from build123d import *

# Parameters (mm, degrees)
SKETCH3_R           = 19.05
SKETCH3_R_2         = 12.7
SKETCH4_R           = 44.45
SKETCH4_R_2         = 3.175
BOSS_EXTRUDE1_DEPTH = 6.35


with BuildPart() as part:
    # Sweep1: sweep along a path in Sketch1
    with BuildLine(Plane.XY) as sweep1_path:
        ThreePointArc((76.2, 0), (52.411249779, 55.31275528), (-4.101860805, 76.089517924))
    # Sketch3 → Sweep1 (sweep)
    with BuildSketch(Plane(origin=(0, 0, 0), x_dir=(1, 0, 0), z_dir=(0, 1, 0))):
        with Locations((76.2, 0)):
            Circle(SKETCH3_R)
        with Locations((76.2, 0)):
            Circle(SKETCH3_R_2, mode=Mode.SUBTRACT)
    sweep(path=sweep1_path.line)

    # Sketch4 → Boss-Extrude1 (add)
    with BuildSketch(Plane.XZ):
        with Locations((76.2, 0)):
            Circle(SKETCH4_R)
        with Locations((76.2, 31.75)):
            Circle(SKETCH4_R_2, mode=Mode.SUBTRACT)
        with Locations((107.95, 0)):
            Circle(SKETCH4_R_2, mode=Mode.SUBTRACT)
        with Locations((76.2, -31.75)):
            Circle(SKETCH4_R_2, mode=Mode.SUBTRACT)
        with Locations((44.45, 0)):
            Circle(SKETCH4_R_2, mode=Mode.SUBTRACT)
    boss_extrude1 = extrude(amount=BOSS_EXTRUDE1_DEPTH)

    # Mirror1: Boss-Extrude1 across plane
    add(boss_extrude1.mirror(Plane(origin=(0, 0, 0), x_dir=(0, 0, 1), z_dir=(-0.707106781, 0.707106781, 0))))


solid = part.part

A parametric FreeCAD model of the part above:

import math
import FreeCAD as App
import Part
import Sketcher
Q = App.Units.Quantity

doc = App.newDocument("Part")
body = doc.addObject("PartDesign::Body", "Body")

sketch1 = body.newObject("Sketcher::SketchObject", "Sketch")
sketch1.AttachmentSupport = (doc.getObject("XZ_Plane"), [""])
sketch1.MapMode = "FlatFace"
sketch1.addGeometry(Part.Circle(App.Vector(76, 0, 0), App.Vector(0, 0, 1), 19), False)
sketch1.addGeometry(Part.Circle(App.Vector(76, 0, 0), App.Vector(0, 0, 1), 13), False)
sketch1.addConstraint(Sketcher.Constraint("Coincident", 1, 3, 0, 3))
sketch1.addConstraint(Sketcher.Constraint("PointOnObject", 0, 3, -1))
sketch1.addConstraint(Sketcher.Constraint("Diameter", 1, Q("1 in")))
sketch1.addConstraint(Sketcher.Constraint("Diameter", 0, Q("1.5 in")))
sketch1.addConstraint(Sketcher.Constraint("DistanceX", -1, 1, 0, 3, Q("3 in")))

sketch2 = body.newObject("Sketcher::SketchObject", "Sketch001")
sketch2.AttachmentSupport = (doc.getObject("XY_Plane"), [""])
sketch2.MapMode = "FlatFace"
sketch2.addGeometry(Part.ArcOfCircle(Part.Circle(App.Vector(0, 0, 0), App.Vector(0, 0, 1), 76), math.radians(0), math.radians(93)), False)
sketch2.addConstraint(Sketcher.Constraint("Coincident", 0, 3, -1, 1))
sketch2.addConstraint(Sketcher.Constraint("PointOnObject", 0, 1, -1))
sketch2.addConstraint(Sketcher.Constraint("Radius", 0, Q("3 in")))
sketch2.addConstraint(Sketcher.Constraint("DistanceX", 0, 2, -1, 1, 4.101861))
doc.recompute()

additivepipe = body.newObject("PartDesign::AdditivePipe", "AdditivePipe")
additivepipe.Profile = sketch1
additivepipe.Spine = (sketch2, ["Edge1"])

sketch3 = body.newObject("Sketcher::SketchObject", "Sketch002")
sketch3.AttachmentSupport = (doc.getObject("XZ_Plane"), [""])
sketch3.MapMode = "FlatFace"
sketch3.addGeometry(Part.Circle(App.Vector(76.2, 0, 0), App.Vector(0, 0, 1), 44.5), False)
sketch3.addGeometry(Part.Circle(App.Vector(76.2, -31.8, 0), App.Vector(0, 0, 1), 3.2), False)
sketch3.addGeometry(Part.Circle(App.Vector(44.5, 0, 0), App.Vector(0, 0, 1), 3.2), False)
sketch3.addGeometry(Part.Circle(App.Vector(108, 0, 0), App.Vector(0, 0, 1), 3.2), False)
sketch3.addGeometry(Part.Circle(App.Vector(76.2, 31.8, 0), App.Vector(0, 0, 1), 3.2), False)
sketch3.addConstraint(Sketcher.Constraint("Equal", 1, 2))
sketch3.addConstraint(Sketcher.Constraint("Equal", 2, 3))
sketch3.addConstraint(Sketcher.Constraint("Equal", 3, 4))
sketch3.addConstraint(Sketcher.Constraint("Symmetric", 1, 3, 4, 3, -1))
sketch3.addConstraint(Sketcher.Constraint("PointOnObject", 0, 3, -1))
sketch3.addConstraint(Sketcher.Constraint("PointOnObject", 2, 3, -1))
sketch3.addConstraint(Sketcher.Constraint("PointOnObject", 3, 3, -1))
sketch3.addConstraint(Sketcher.Constraint("Vertical", 0, 3, 1, 3))
sketch3.addConstraint(Sketcher.Constraint("Diameter", 0, Q("3.5 in")))
sketch3.addConstraint(Sketcher.Constraint("Diameter", 1, Q("0.25 in")))
sketch3.addConstraint(Sketcher.Constraint("DistanceX", -1, 1, 0, 3, Q("3 in")))
sketch3.addConstraint(Sketcher.Constraint("DistanceX", 2, 3, 3, 3, Q("2.5 in")))
sketch3.addConstraint(Sketcher.Constraint("DistanceY", 1, 3, 4, 3, Q("2.5 in")))
sketch3.addConstraint(Sketcher.Constraint("DistanceX", -1, 1, 2, 3, Q("1.75 in")))
pad1 = body.newObject("PartDesign::Pad", "Pad")
pad1.Profile = sketch3
pad1.Length = Q("0.25 in")
doc.recompute()

datumplane = body.newObject("PartDesign::Plane", "DatumPlane")
datumplane.Placement = App.Placement(App.Vector(0, 0, 0), App.Rotation(App.Vector(0.707106781, 0.707106781, 0), App.Vector(0, 0, -1), App.Vector(-0.707106781, 0.707106781, 0), "ZXY"))
mirrored = body.newObject("PartDesign::Mirrored", "Mirrored")
mirrored.Originals = [pad1]
mirrored.MirrorPlane = (datumplane, [""])
body.Tip = mirrored

doc.recompute()
